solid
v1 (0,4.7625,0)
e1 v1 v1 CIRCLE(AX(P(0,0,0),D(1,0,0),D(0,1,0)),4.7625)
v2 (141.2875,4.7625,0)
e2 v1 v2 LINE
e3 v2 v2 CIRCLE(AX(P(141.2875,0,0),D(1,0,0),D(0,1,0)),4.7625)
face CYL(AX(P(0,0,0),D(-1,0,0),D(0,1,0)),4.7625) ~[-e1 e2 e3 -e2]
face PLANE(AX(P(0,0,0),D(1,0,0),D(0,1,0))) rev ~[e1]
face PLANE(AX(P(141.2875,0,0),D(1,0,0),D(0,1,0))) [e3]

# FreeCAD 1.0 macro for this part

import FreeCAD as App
import Part
import Sketcher
from FreeCAD import Vector
Q = App.Units.Quantity

doc = App.newDocument("Part")
body = doc.addObject("PartDesign::Body", "Body")

# Sketch on YZ plane
sketch1 = doc.addObject("Sketcher::SketchObject", "Sketch")
body.addObject(sketch1)
sketch1.AttachmentSupport = (doc.YZ_Plane, [""])
sketch1.MapMode = "FlatFace"
sketch1.addGeometry(Part.Circle(Vector(0, 0, 0), Vector(0, 0, 1), 4.7625), False)
sketch1.addConstraint(Sketcher.Constraint("Coincident", 0, 3, -1, 1))
sketch1.addConstraint(Sketcher.Constraint("Diameter", 0, Q("0.375 in")))
pad1 = doc.addObject("PartDesign::Pad", "Pad")
body.addObject(pad1)
pad1.Profile = sketch1
pad1.Length = Q("5.5625 in")

doc.recompute()
